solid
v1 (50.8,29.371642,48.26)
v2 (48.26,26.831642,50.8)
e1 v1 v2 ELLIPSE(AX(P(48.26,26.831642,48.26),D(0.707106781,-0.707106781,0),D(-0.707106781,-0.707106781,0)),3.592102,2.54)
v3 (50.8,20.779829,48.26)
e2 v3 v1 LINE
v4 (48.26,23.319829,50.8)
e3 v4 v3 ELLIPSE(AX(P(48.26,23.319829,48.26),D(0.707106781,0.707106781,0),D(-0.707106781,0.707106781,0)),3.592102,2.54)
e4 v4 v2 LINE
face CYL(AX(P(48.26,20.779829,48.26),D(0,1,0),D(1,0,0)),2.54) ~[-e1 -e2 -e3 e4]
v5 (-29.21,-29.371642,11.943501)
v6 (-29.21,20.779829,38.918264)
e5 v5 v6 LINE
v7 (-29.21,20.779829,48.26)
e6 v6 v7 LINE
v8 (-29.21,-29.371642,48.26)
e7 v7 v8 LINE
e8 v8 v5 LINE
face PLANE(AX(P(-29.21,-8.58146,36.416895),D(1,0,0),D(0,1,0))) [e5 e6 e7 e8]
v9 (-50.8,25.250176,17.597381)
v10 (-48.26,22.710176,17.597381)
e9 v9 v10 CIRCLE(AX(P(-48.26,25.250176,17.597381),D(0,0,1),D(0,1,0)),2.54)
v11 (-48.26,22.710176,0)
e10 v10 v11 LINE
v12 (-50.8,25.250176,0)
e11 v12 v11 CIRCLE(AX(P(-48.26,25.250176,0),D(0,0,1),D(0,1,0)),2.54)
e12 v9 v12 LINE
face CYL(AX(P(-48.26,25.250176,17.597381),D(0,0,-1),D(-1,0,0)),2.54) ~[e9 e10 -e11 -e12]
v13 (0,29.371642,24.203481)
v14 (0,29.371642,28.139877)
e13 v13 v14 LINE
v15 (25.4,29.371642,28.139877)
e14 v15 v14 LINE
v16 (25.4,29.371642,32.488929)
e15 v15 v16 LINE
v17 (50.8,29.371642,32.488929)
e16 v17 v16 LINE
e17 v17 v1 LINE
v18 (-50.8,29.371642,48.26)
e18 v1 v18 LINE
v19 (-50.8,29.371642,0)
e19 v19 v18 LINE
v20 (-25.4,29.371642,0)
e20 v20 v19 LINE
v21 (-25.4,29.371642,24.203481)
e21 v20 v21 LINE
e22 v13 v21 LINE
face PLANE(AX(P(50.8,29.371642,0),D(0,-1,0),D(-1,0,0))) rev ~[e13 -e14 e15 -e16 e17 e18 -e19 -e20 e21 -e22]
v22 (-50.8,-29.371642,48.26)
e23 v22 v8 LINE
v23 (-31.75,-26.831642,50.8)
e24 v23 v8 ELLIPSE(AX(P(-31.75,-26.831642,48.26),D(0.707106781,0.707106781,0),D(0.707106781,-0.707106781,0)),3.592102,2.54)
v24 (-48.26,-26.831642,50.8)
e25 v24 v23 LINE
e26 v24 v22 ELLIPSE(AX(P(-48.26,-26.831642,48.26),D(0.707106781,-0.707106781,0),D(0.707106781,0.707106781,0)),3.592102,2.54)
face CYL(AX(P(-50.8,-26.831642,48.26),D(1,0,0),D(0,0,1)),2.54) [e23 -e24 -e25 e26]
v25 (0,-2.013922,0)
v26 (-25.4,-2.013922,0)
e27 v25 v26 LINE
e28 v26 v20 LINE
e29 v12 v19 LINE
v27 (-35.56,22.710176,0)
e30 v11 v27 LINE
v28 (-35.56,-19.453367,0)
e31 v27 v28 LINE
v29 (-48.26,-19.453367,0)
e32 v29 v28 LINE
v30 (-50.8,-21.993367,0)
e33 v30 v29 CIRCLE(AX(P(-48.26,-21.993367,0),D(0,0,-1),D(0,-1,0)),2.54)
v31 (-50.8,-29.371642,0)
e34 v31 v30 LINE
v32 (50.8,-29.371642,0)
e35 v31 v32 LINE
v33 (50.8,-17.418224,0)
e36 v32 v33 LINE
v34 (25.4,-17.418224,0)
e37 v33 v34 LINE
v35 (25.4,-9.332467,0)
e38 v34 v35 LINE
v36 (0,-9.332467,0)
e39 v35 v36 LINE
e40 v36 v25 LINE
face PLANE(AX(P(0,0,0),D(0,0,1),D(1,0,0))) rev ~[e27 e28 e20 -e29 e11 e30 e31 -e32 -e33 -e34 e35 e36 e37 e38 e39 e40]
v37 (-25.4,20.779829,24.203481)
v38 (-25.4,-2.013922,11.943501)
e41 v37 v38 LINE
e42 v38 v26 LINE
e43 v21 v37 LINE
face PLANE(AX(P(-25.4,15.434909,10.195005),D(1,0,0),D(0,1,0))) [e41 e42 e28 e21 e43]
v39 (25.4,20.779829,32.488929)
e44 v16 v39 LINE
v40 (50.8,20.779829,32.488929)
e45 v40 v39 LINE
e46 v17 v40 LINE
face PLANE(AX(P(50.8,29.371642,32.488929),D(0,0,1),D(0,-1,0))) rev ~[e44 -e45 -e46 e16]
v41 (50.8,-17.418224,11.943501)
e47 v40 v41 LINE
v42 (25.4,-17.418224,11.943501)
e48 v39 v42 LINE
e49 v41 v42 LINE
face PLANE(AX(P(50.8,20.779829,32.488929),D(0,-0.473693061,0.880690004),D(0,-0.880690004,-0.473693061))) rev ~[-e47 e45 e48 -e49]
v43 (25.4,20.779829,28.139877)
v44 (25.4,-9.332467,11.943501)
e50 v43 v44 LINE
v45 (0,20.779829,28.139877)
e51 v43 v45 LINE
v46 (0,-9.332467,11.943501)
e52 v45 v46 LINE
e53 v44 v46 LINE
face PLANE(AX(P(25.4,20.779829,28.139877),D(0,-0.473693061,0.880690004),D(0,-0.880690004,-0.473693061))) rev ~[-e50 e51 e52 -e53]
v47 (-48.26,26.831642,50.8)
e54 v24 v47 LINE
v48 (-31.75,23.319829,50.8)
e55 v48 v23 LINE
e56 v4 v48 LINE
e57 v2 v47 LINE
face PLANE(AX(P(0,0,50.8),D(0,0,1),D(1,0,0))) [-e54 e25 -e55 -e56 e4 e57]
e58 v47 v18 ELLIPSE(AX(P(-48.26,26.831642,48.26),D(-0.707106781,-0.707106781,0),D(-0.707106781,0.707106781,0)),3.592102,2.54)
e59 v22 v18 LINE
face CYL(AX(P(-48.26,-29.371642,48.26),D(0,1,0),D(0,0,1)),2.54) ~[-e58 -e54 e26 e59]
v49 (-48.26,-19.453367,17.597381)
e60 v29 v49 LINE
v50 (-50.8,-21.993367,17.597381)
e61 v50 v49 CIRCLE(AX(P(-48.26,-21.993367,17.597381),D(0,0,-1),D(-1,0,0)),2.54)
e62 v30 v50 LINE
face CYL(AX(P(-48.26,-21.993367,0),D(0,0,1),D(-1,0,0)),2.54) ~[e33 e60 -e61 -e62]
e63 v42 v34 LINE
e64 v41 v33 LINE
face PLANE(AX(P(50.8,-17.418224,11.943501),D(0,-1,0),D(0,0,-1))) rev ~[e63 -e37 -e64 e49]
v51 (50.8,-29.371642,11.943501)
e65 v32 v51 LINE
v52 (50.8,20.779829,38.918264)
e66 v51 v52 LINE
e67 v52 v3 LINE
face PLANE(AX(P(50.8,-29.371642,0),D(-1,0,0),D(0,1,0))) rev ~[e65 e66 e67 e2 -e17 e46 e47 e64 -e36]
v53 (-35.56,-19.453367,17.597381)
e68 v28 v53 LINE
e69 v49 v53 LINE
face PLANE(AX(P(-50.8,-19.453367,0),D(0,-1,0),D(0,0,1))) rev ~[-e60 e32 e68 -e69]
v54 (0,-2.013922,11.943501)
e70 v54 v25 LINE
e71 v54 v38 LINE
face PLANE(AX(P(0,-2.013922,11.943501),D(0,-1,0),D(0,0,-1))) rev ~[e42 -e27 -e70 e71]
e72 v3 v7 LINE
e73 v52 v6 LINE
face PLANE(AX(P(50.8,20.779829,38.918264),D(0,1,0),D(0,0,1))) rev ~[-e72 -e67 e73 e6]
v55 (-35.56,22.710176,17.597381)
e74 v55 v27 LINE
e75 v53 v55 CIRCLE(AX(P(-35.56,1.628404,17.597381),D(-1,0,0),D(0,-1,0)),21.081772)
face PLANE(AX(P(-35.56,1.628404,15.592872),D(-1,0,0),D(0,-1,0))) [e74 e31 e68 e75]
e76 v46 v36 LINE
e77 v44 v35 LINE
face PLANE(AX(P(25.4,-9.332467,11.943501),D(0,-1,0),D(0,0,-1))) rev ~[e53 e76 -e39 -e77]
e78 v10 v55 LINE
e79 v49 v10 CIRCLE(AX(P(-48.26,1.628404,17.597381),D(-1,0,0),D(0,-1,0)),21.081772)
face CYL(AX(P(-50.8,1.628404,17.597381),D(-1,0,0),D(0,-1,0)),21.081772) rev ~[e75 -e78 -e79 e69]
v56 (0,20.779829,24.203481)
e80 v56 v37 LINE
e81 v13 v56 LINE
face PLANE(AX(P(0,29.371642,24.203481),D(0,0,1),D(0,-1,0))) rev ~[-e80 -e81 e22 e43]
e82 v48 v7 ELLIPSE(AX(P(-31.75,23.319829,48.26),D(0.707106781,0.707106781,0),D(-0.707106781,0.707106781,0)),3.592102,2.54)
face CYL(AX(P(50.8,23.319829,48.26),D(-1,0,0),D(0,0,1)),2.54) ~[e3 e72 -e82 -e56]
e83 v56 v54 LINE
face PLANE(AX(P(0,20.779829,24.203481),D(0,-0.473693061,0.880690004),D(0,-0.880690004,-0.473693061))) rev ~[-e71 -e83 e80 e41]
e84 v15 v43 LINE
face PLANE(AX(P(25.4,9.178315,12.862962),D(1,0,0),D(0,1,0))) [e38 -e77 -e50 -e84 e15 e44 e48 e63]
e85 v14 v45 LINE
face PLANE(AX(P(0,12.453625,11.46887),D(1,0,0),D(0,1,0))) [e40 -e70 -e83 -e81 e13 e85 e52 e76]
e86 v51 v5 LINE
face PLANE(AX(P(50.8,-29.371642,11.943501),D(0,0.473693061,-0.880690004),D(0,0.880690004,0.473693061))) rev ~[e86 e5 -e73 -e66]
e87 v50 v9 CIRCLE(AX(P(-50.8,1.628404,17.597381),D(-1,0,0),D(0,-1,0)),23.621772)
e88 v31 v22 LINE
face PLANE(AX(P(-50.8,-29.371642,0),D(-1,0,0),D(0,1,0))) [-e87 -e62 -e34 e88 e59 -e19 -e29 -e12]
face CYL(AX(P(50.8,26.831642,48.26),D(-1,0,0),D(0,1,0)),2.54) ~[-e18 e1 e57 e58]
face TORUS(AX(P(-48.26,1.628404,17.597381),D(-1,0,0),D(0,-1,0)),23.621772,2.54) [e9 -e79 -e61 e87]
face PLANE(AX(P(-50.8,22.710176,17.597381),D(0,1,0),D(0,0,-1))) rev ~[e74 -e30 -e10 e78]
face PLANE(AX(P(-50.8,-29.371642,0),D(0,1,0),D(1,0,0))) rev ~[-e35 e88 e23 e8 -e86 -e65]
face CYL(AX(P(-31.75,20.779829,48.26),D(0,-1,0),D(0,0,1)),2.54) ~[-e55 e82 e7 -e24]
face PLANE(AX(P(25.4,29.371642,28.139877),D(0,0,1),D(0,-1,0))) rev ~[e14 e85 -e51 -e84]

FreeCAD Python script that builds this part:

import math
import FreeCAD as App
import Part
import Sketcher
Q = App.Units.Quantity


def edges_at(feature, points):
    """Names of the edges that pass closest to the given points."""
    edges = feature.Shape.Edges
    near = lambda p: min(range(len(edges)), key=lambda i: edges[i].distToShape(Part.Vertex(*p))[0])
    return sorted({f"Edge{near(p) + 1}" for p in points})

doc = App.newDocument("Part")
params = doc.addObject("Spreadsheet::Sheet", "Params")
for row, (alias, value) in enumerate([
    ("sketch1_width", "4 in"),
    ("pad1_length", "2 in"),
    ("pocket1_length", "0.6 in"),
    ("pocket2_length", "3.15 in"),
    ("pocket3_length", "1 in"),
    ("fillet_radius", "0.1 in"),
    ("pocket4_length", "1 in"),
    ("pocket5_length", "1 in"),
    ("pocket6_length", "1 in"),
], start=1):
    params.set(f"A{row}", alias)
    params.set(f"B{row}", "=" + value)
    params.setAlias(f"B{row}", alias)

body = doc.addObject("PartDesign::Body", "Body")

# Sketch on XY plane
sketch1 = body.newObject("Sketcher::SketchObject", "Sketch")
sketch1.AttachmentSupport = (doc.getObject("XY_Plane"), [""])
sketch1.MapMode = "FlatFace"
sketch1.addGeometry(Part.LineSegment(App.Vector(51, -29, 0), App.Vector(51, 29, 0)), False)
sketch1.addGeometry(Part.LineSegment(App.Vector(51, 29, 0), App.Vector(-51, 29, 0)), False)
sketch1.addGeometry(Part.LineSegment(App.Vector(-51, 29, 0), App.Vector(-51, -29, 0)), False)
sketch1.addGeometry(Part.LineSegment(App.Vector(-51, -29, 0), App.Vector(51, -29, 0)), False)
sketch1.addConstraint(Sketcher.Constraint("Coincident", 0, 2, 1, 1))
sketch1.addConstraint(Sketcher.Constraint("Coincident", 1, 2, 2, 1))
sketch1.addConstraint(Sketcher.Constraint("Coincident", 2, 2, 3, 1))
sketch1.addConstraint(Sketcher.Constraint("Coincident", 3, 2, 0, 1))
sketch1.addConstraint(Sketcher.Constraint("Vertical", 0))
sketch1.addConstraint(Sketcher.Constraint("Horizontal", 1))
sketch1.addConstraint(Sketcher.Constraint("Vertical", 2))
sketch1.addConstraint(Sketcher.Constraint("Horizontal", 3))
sketch1.addConstraint(Sketcher.Constraint("Symmetric", 0, 2, 2, 2, -1, 1))
sketch1.addConstraint(Sketcher.Constraint("DistanceX", 1, 2, 1, 1, Q("4 in")))
sketch1.addConstraint(Sketcher.Constraint("DistanceY", 0, 1, 0, 2, Q("58.743284 mm")))
sketch1.setExpression("Constraints[9]", "Params.sketch1_width")
pad1 = body.newObject("PartDesign::Pad", "Pad")
pad1.Profile = sketch1
pad1.setExpression("Length", "Params.pad1_length")

# Sketch on YZ plane
sketch2 = body.newObject("Sketcher::SketchObject", "Sketch001")
sketch2.AttachmentSupport = (doc.getObject("YZ_Plane"), [""])
sketch2.MapMode = "FlatFace"
sketch2.AttachmentOffset = App.Placement(App.Vector(0, 0, -2 * 25.4), App.Rotation())
sketch2.addGeometry(Part.LineSegment(App.Vector(23, 18, 0), App.Vector(23, 0, 0)), False)
sketch2.addGeometry(Part.LineSegment(App.Vector(23, 0, 0), App.Vector(-19, 0, 0)), False)
sketch2.addGeometry(Part.LineSegment(App.Vector(-19, 0, 0), App.Vector(-19, 18, 0)), False)
sketch2.addGeometry(Part.ArcOfCircle(Part.Circle(App.Vector(2, 18, 0), App.Vector(0, 0, 1), 21), math.radians(0), math.radians(180)), False)
sketch2.addConstraint(Sketcher.Constraint("Coincident", 0, 2, 1, 1))
sketch2.addConstraint(Sketcher.Constraint("Coincident", 1, 2, 2, 1))
sketch2.addConstraint(Sketcher.Constraint("Tangent", 2, 2, 3, 2))
sketch2.addConstraint(Sketcher.Constraint("Tangent", 3, 1, 0, 1))
sketch2.addConstraint(Sketcher.Constraint("Vertical", 0))
sketch2.addConstraint(Sketcher.Constraint("Horizontal", 1))
sketch2.addConstraint(Sketcher.Constraint("Vertical", 2))
sketch2.addConstraint(Sketcher.Constraint("PointOnObject", 0, 2, -1))
sketch2.addConstraint(Sketcher.Constraint("Radius", 3, Q("21.081772 mm")))
sketch2.addConstraint(Sketcher.Constraint("DistanceY", 0, 2, 0, 1, Q("17.597381 mm")))
sketch2.addConstraint(Sketcher.Constraint("DistanceX", -1, 1, 3, 3, Q("1.628404 mm")))
pocket1 = body.newObject("PartDesign::Pocket", "Pocket")
pocket1.Profile = sketch2
pocket1.setExpression("Length", "Params.pocket1_length")
pocket1.Reversed = True

# Sketch on YZ plane
sketch3 = body.newObject("Sketcher::SketchObject", "Sketch002")
sketch3.AttachmentSupport = (doc.getObject("YZ_Plane"), [""])
sketch3.MapMode = "FlatFace"
sketch3.AttachmentOffset = App.Placement(App.Vector(0, 0, 2 * 25.4), App.Rotation())
sketch3.addGeometry(Part.LineSegment(App.Vector(-29, 51, 0), App.Vector(-29, 12, 0)), False)
sketch3.addGeometry(Part.LineSegment(App.Vector(-29, 12, 0), App.Vector(21, 39, 0)), False)
sketch3.addGeometry(Part.LineSegment(App.Vector(21, 39, 0), App.Vector(21, 51, 0)), False)
sketch3.addGeometry(Part.LineSegment(App.Vector(21, 51, 0), App.Vector(-29, 51, 0)), False)
sketch3.addConstraint(Sketcher.Constraint("Coincident", 0, 2, 1, 1))
sketch3.addConstraint(Sketcher.Constraint("Coincident", 1, 2, 2, 1))
sketch3.addConstraint(Sketcher.Constraint("Coincident", 2, 2, 3, 1))
sketch3.addConstraint(Sketcher.Constraint("Coincident", 3, 2, 0, 1))
sketch3.addConstraint(Sketcher.Constraint("Vertical", 0))
sketch3.addConstraint(Sketcher.Constraint("Vertical", 2))
sketch3.addConstraint(Sketcher.Constraint("Horizontal", 3))
sketch3.addConstraint(Sketcher.Constraint("DistanceY", -1, 1, 2, 2, Q("2 in")))
sketch3.addConstraint(Sketcher.Constraint("DistanceY", 0, 2, 0, 1, Q("38.856499 mm")))
sketch3.addConstraint(Sketcher.Constraint("DistanceX", 3, 2, 3, 1, Q("50.151471 mm")))
sketch3.addConstraint(Sketcher.Constraint("DistanceY", 2, 1, 2, 2, Q("11.881736 mm")))
sketch3.addConstraint(Sketcher.Constraint("DistanceX", 0, 2, -1, 1, Q("29.371642 mm")))
pocket2 = body.newObject("PartDesign::Pocket", "Pocket001")
pocket2.Profile = sketch3
pocket2.setExpression("Length", "Params.pocket2_length")

# Sketch on YZ plane
sketch4 = body.newObject("Sketcher::SketchObject", "Sketch003")
sketch4.AttachmentSupport = (doc.getObject("YZ_Plane"), [""])
sketch4.MapMode = "FlatFace"
sketch4.AttachmentOffset = App.Placement(App.Vector(0, 0, 2 * 25.4), App.Rotation())
sketch4.addGeometry(Part.LineSegment(App.Vector(-17, 12, 0), App.Vector(-17, 0, 0)), False)
sketch4.addGeometry(Part.LineSegment(App.Vector(-17, 0, 0), App.Vector(29, 0, 0)), False)
sketch4.addGeometry(Part.LineSegment(App.Vector(29, 0, 0), App.Vector(29, 32, 0)), False)
sketch4.addGeometry(Part.LineSegment(App.Vector(29, 32, 0), App.Vector(21, 32, 0)), False)
sketch4.addGeometry(Part.LineSegment(App.Vector(21, 32, 0), App.Vector(-17, 12, 0)), False)
sketch4.addConstraint(Sketcher.Constraint("Coincident", 0, 2, 1, 1))
sketch4.addConstraint(Sketcher.Constraint("Coincident", 1, 2, 2, 1))
sketch4.addConstraint(Sketcher.Constraint("Coincident", 2, 2, 3, 1))
sketch4.addConstraint(Sketcher.Constraint("Coincident", 3, 2, 4, 1))
sketch4.addConstraint(Sketcher.Constraint("Coincident", 4, 2, 0, 1))
sketch4.addConstraint(Sketcher.Constraint("Vertical", 0))
sketch4.addConstraint(Sketcher.Constraint("Horizontal", 1))
sketch4.addConstraint(Sketcher.Constraint("Vertical", 2))
sketch4.addConstraint(Sketcher.Constraint("Horizontal", 3))
sketch4.addConstraint(Sketcher.Constraint("PointOnObject", 0, 2, -1))
sketch4.addConstraint(Sketcher.Constraint("DistanceY", 0, 2, 0, 1, Q("11.943501 mm")))
sketch4.addConstraint(Sketcher.Constraint("DistanceY", 2, 1, 2, 2, Q("32.488929 mm")))
sketch4.addConstraint(Sketcher.Constraint("Distance", 4, Q("43.372871 mm")))
sketch4.addConstraint(Sketcher.Constraint("DistanceX", 1, 1, 1, 2, Q("46.789866 mm")))
sketch4.addConstraint(Sketcher.Constraint("DistanceX", -1, 1, 1, 2, Q("29.371642 mm")))
pocket3 = body.newObject("PartDesign::Pocket", "Pocket002")
pocket3.Profile = sketch4
pocket3.setExpression("Length", "Params.pocket3_length")
doc.recompute()

fillet = body.newObject("PartDesign::Fillet", "Fillet")
fillet.Base = (pocket3, edges_at(pocket3, [
    (10.795, 20.78, 50.8),
    (-29.21, -4.296, 50.8),
    (-40.005, -29.372, 50.8),
    (-50.8, 0, 50.8),
    (0, 29.372, 50.8),
    (50.8, 25.076, 50.8),
    (-50.8, 1.628, 38.679),
]))
fillet.setExpression("Radius", "Params.fillet_radius")

# Sketch on YZ plane
sketch5 = body.newObject("Sketcher::SketchObject", "Sketch004")
sketch5.AttachmentSupport = (doc.getObject("YZ_Plane"), [""])
sketch5.MapMode = "FlatFace"
sketch5.AttachmentOffset = App.Placement(App.Vector(0, 0, 1 * 25.4), App.Rotation())
sketch5.addGeometry(Part.LineSegment(App.Vector(-9, 12, 0), App.Vector(-9, 0, 0)), False)
sketch5.addGeometry(Part.LineSegment(App.Vector(-9, 0, 0), App.Vector(29, 0, 0)), False)
sketch5.addGeometry(Part.LineSegment(App.Vector(29, 0, 0), App.Vector(29, 28, 0)), False)
sketch5.addGeometry(Part.LineSegment(App.Vector(29, 28, 0), App.Vector(21, 28, 0)), False)
sketch5.addGeometry(Part.LineSegment(App.Vector(21, 28, 0), App.Vector(-9, 12, 0)), False)
sketch5.addConstraint(Sketcher.Constraint("Coincident", 0, 2, 1, 1))
sketch5.addConstraint(Sketcher.Constraint("Coincident", 1, 2, 2, 1))
sketch5.addConstraint(Sketcher.Constraint("Coincident", 2, 2, 3, 1))
sketch5.addConstraint(Sketcher.Constraint("Coincident", 3, 2, 4, 1))
sketch5.addConstraint(Sketcher.Constraint("Coincident", 4, 2, 0, 1))
sketch5.addConstraint(Sketcher.Constraint("Vertical", 0))
sketch5.addConstraint(Sketcher.Constraint("Horizontal", 1))
sketch5.addConstraint(Sketcher.Constraint("Vertical", 2))
sketch5.addConstraint(Sketcher.Constraint("Horizontal", 3))
sketch5.addConstraint(Sketcher.Constraint("PointOnObject", 0, 2, -1))
sketch5.addConstraint(Sketcher.Constraint("DistanceY", 0, 2, 0, 1, Q("11.943501 mm")))
sketch5.addConstraint(Sketcher.Constraint("DistanceX", 1, 1, 1, 2, Q("38.704109 mm")))
sketch5.addConstraint(Sketcher.Constraint("Distance", 4, Q("34.191709 mm")))
sketch5.addConstraint(Sketcher.Constraint("DistanceX", 3, 2, 3, 1, Q("8.591812 mm")))
sketch5.addConstraint(Sketcher.Constraint("DistanceX", -1, 1, 1, 2, Q("29.371642 mm")))
pocket4 = body.newObject("PartDesign::Pocket", "Pocket003")
pocket4.Profile = sketch5
pocket4.setExpression("Length", "Params.pocket4_length")

# Sketch on XY plane
sketch6 = body.newObject("Sketcher::SketchObject", "Sketch005")
sketch6.AttachmentSupport = (doc.getObject("XY_Plane"), [""])
sketch6.MapMode = "FlatFace"
sketch6.addGeometry(Part.LineSegment(App.Vector(23, 30, 0), App.Vector(23, 3, 0)), False)
sketch6.addGeometry(Part.LineSegment(App.Vector(23, 3, 0), App.Vector(67, 3, 0)), False)
sketch6.addGeometry(Part.LineSegment(App.Vector(67, 3, 0), App.Vector(67, 30, 0)), False)
sketch6.addGeometry(Part.LineSegment(App.Vector(67, 30, 0), App.Vector(23, 30, 0)), False)
sketch6.addConstraint(Sketcher.Constraint("Coincident", 0, 2, 1, 1))
sketch6.addConstraint(Sketcher.Constraint("Coincident", 1, 2, 2, 1))
sketch6.addConstraint(Sketcher.Constraint("Coincident", 2, 2, 3, 1))
sketch6.addConstraint(Sketcher.Constraint("Coincident", 3, 2, 0, 1))
sketch6.addConstraint(Sketcher.Constraint("Vertical", 0))
sketch6.addConstraint(Sketcher.Constraint("Horizontal", 1))
sketch6.addConstraint(Sketcher.Constraint("Vertical", 2))
sketch6.addConstraint(Sketcher.Constraint("Horizontal", 3))
sketch6.addConstraint(Sketcher.Constraint("DistanceY", 0, 2, 0, 1, Q("27.1945 mm")))
sketch6.addConstraint(Sketcher.Constraint("DistanceX", 1, 1, 1, 2, Q("43.674493 mm")))
sketch6.addConstraint(Sketcher.Constraint("DistanceX", -1, 1, 0, 2, Q("23.39985 mm")))
sketch6.addConstraint(Sketcher.Constraint("DistanceY", -1, 1, 0, 2, Q("3.002416 mm")))
pocket5 = body.newObject("PartDesign::Pocket", "Pocket004")
pocket5.Profile = sketch6
pocket5.setExpression("Length", "Params.pocket5_length")

# Sketch on YZ plane
sketch7 = body.newObject("Sketcher::SketchObject", "Sketch006")
sketch7.AttachmentSupport = (doc.getObject("YZ_Plane"), [""])
sketch7.MapMode = "FlatFace"
sketch7.addGeometry(Part.LineSegment(App.Vector(-2, 12, 0), App.Vector(-2, 0, 0)), False)
sketch7.addGeometry(Part.LineSegment(App.Vector(-2, 0, 0), App.Vector(29, 0, 0)), False)
sketch7.addGeometry(Part.LineSegment(App.Vector(29, 0, 0), App.Vector(29, 24, 0)), False)
sketch7.addGeometry(Part.LineSegment(App.Vector(29, 24, 0), App.Vector(21, 24, 0)), False)
sketch7.addGeometry(Part.LineSegment(App.Vector(21, 24, 0), App.Vector(-2, 12, 0)), False)
sketch7.addConstraint(Sketcher.Constraint("Coincident", 0, 2, 1, 1))
sketch7.addConstraint(Sketcher.Constraint("Coincident", 1, 2, 2, 1))
sketch7.addConstraint(Sketcher.Constraint("Coincident", 2, 2, 3, 1))
sketch7.addConstraint(Sketcher.Constraint("Coincident", 3, 2, 4, 1))
sketch7.addConstraint(Sketcher.Constraint("Coincident", 4, 2, 0, 1))
sketch7.addConstraint(Sketcher.Constraint("Vertical", 0))
sketch7.addConstraint(Sketcher.Constraint("Horizontal", 1))
sketch7.addConstraint(Sketcher.Constraint("Vertical", 2))
sketch7.addConstraint(Sketcher.Constraint("Horizontal", 3))
sketch7.addConstraint(Sketcher.Constraint("PointOnObject", 0, 2, -1))
sketch7.addConstraint(Sketcher.Constraint("DistanceY", 0, 2, 0, 1, Q("11.943501 mm")))
sketch7.addConstraint(Sketcher.Constraint("DistanceY", 2, 1, 2, 2, Q("24.203481 mm")))
sketch7.addConstraint(Sketcher.Constraint("DistanceX", 1, 1, 1, 2, Q("31.385563 mm")))
sketch7.addConstraint(Sketcher.Constraint("DistanceX", 3, 2, 3, 1, Q("8.591812 mm")))
sketch7.addConstraint(Sketcher.Constraint("DistanceX", 0, 2, -1, 1, Q("2.013922 mm")))
pocket6 = body.newObject("PartDesign::Pocket", "Pocket005")
pocket6.Profile = sketch7
pocket6.setExpression("Length", "Params.pocket6_length")

doc.recompute()
